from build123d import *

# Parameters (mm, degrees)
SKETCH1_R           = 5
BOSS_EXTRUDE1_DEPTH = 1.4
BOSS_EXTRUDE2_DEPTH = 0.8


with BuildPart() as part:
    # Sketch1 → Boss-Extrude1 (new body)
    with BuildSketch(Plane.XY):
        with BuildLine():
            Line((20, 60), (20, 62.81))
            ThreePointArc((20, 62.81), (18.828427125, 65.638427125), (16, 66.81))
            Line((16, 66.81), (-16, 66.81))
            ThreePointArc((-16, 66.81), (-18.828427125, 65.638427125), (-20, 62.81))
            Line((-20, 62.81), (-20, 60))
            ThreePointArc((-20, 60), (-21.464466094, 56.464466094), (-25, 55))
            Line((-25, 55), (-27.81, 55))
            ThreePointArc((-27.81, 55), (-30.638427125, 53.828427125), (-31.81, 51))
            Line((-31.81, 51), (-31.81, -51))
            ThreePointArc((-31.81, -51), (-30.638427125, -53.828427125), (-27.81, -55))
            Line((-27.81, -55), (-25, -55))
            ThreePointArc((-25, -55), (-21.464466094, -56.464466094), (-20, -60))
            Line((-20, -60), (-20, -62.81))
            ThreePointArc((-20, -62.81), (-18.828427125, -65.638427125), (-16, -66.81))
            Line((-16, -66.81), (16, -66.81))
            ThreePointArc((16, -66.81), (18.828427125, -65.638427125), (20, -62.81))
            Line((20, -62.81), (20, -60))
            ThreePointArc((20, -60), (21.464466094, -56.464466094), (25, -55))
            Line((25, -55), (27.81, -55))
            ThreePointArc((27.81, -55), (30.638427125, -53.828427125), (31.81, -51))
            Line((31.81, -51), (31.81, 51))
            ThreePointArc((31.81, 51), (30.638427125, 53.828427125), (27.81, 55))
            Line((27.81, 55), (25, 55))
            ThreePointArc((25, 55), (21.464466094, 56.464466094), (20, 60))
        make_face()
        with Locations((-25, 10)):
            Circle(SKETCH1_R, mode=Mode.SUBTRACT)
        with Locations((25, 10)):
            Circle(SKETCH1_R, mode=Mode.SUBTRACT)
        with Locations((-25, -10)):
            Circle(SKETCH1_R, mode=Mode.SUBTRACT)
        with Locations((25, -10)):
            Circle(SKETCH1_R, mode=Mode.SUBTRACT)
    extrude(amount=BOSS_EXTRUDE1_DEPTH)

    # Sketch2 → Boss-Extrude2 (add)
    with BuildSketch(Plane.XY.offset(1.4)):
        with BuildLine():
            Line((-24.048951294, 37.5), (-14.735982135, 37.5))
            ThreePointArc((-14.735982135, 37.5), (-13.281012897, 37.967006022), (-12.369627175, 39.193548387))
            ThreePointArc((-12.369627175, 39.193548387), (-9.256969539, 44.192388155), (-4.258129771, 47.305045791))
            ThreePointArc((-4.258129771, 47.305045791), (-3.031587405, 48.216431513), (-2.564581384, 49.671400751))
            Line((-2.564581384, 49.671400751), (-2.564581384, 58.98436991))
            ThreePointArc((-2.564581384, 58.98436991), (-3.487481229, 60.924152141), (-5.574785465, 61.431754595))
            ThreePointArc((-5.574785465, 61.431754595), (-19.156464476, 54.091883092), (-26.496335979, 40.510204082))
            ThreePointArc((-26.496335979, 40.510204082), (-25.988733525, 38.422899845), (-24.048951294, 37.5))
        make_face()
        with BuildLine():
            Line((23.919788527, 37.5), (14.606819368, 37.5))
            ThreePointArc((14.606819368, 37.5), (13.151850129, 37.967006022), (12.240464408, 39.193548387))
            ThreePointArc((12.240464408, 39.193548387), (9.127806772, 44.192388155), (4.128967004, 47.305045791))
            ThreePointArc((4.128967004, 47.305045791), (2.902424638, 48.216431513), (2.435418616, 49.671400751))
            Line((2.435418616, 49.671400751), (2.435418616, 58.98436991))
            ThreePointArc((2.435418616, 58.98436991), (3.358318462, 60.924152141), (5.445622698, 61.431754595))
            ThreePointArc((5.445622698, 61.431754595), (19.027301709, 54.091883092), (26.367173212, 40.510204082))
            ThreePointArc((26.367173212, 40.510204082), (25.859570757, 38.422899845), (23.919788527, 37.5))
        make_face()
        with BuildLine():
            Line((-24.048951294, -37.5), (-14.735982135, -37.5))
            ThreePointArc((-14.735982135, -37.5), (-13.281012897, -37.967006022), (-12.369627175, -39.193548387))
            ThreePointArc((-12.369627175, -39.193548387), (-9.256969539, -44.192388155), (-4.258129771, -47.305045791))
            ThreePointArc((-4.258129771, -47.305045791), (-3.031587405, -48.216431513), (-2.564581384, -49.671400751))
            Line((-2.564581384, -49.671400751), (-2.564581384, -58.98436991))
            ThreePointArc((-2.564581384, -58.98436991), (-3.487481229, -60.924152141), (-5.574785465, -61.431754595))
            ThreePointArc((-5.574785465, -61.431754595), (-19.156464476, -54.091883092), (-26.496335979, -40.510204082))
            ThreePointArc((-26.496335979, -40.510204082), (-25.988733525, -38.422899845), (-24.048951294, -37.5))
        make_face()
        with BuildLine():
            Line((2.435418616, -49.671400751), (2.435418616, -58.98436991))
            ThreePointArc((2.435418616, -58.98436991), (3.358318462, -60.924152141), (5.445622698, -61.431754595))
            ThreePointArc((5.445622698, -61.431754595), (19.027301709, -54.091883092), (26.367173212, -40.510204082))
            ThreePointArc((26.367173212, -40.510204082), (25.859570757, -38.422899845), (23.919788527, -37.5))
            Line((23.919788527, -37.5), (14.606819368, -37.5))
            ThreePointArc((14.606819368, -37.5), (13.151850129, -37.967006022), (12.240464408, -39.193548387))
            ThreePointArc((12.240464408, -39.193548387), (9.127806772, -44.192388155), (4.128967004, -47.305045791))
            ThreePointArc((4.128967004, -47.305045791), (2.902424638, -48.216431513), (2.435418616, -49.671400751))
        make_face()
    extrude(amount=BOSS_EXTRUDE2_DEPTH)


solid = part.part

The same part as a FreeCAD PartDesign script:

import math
import FreeCAD as App
import Part
import Sketcher
Q = App.Units.Quantity

doc = App.newDocument("Part")
body = doc.addObject("PartDesign::Body", "Body")

# Sketch on XY plane
sketch1 = doc.addObject("Sketcher::SketchObject", "Sketch")
body.addObject(sketch1)
sketch1.AttachmentSupport = (doc.XY_Plane, [""])
sketch1.MapMode = "FlatFace"
sketch1.addGeometry(Part.LineSegment(App.Vector(20, 60, 0), App.Vector(20, 62.8, 0)), False)
sketch1.addGeometry(Part.ArcOfCircle(Part.Circle(App.Vector(16, 62.8, 0), App.Vector(0, 0, 1), 4), math.radians(0), math.radians(90)), False)
sketch1.addGeometry(Part.LineSegment(App.Vector(16, 66.8, 0), App.Vector(-16, 66.8, 0)), False)
sketch1.addGeometry(Part.ArcOfCircle(Part.Circle(App.Vector(-16, 62.8, 0), App.Vector(0, 0, 1), 4), math.radians(90), math.radians(180)), False)
sketch1.addGeometry(Part.LineSegment(App.Vector(-20, 62.8, 0), App.Vector(-20, 60, 0)), False)
sketch1.addGeometry(Part.ArcOfCircle(Part.Circle(App.Vector(-25, 60, 0), App.Vector(0, 0, 1), 5), math.radians(-90), math.radians(0)), False)
sketch1.addGeometry(Part.LineSegment(App.Vector(-25, 55, 0), App.Vector(-27.8, 55, 0)), False)
sketch1.addGeometry(Part.ArcOfCircle(Part.Circle(App.Vector(-27.8, 51, 0), App.Vector(0, 0, 1), 4), math.radians(90), math.radians(180)), False)
sketch1.addGeometry(Part.LineSegment(App.Vector(-31.8, 51, 0), App.Vector(-31.8, -51, 0)), False)
sketch1.addGeometry(Part.ArcOfCircle(Part.Circle(App.Vector(-27.8, -51, 0), App.Vector(0, 0, 1), 4), math.radians(180), math.radians(270)), False)
sketch1.addGeometry(Part.LineSegment(App.Vector(-27.8, -55, 0), App.Vector(-25, -55, 0)), False)
sketch1.addGeometry(Part.ArcOfCircle(Part.Circle(App.Vector(-25, -60, 0), App.Vector(0, 0, 1), 5), math.radians(0), math.radians(90)), False)
sketch1.addGeometry(Part.LineSegment(App.Vector(-20, -60, 0), App.Vector(-20, -62.8, 0)), False)
sketch1.addGeometry(Part.ArcOfCircle(Part.Circle(App.Vector(-16, -62.8, 0), App.Vector(0, 0, 1), 4), math.radians(180), math.radians(270)), False)
sketch1.addGeometry(Part.LineSegment(App.Vector(-16, -66.8, 0), App.Vector(16, -66.8, 0)), False)
sketch1.addGeometry(Part.ArcOfCircle(Part.Circle(App.Vector(16, -62.8, 0), App.Vector(0, 0, 1), 4), math.radians(-90), math.radians(0)), False)
sketch1.addGeometry(Part.LineSegment(App.Vector(20, -62.8, 0), App.Vector(20, -60, 0)), False)
sketch1.addGeometry(Part.ArcOfCircle(Part.Circle(App.Vector(25, -60, 0), App.Vector(0, 0, 1), 5), math.radians(90), math.radians(180)), False)
sketch1.addGeometry(Part.LineSegment(App.Vector(25, -55, 0), App.Vector(27.8, -55, 0)), False)
sketch1.addGeometry(Part.ArcOfCircle(Part.Circle(App.Vector(27.8, -51, 0), App.Vector(0, 0, 1), 4), math.radians(-90), math.radians(0)), False)
sketch1.addGeometry(Part.LineSegment(App.Vector(31.8, -51, 0), App.Vector(31.8, 51, 0)), False)
sketch1.addGeometry(Part.ArcOfCircle(Part.Circle(App.Vector(27.8, 51, 0), App.Vector(0, 0, 1), 4), math.radians(0), math.radians(90)), False)
sketch1.addGeometry(Part.LineSegment(App.Vector(27.8, 55, 0), App.Vector(25, 55, 0)), False)
sketch1.addGeometry(Part.ArcOfCircle(Part.Circle(App.Vector(25, 60, 0), App.Vector(0, 0, 1), 5), math.radians(180), math.radians(270)), False)
sketch1.addGeometry(Part.Circle(App.Vector(-25, -10, 0), App.Vector(0, 0, 1), 5), False)
sketch1.addGeometry(Part.Circle(App.Vector(25, -10, 0), App.Vector(0, 0, 1), 5), False)
sketch1.addGeometry(Part.Circle(App.Vector(-25, 10, 0), App.Vector(0, 0, 1), 5), False)
sketch1.addGeometry(Part.Circle(App.Vector(25, 10, 0), App.Vector(0, 0, 1), 5), False)
sketch1.addConstraint(Sketcher.Constraint("Tangent", 0, 2, 1, 1))
sketch1.addConstraint(Sketcher.Constraint("Tangent", 1, 2, 2, 1))
sketch1.addConstraint(Sketcher.Constraint("Tangent", 2, 2, 3, 1))
sketch1.addConstraint(Sketcher.Constraint("Tangent", 3, 2, 4, 1))
sketch1.addConstraint(Sketcher.Constraint("Tangent", 4, 2, 5, 2))
sketch1.addConstraint(Sketcher.Constraint("Tangent", 5, 1, 6, 1))
sketch1.addConstraint(Sketcher.Constraint("Tangent", 6, 2, 7, 1))
sketch1.addConstraint(Sketcher.Constraint("Tangent", 7, 2, 8, 1))
sketch1.addConstraint(Sketcher.Constraint("Tangent", 8, 2, 9, 1))
sketch1.addConstraint(Sketcher.Constraint("Tangent", 9, 2, 10, 1))
sketch1.addConstraint(Sketcher.Constraint("Tangent", 10, 2, 11, 2))
sketch1.addConstraint(Sketcher.Constraint("Tangent", 11, 1, 12, 1))
sketch1.addConstraint(Sketcher.Constraint("Tangent", 12, 2, 13, 1))
sketch1.addConstraint(Sketcher.Constraint("Tangent", 13, 2, 14, 1))
sketch1.addConstraint(Sketcher.Constraint("Tangent", 14, 2, 15, 1))
sketch1.addConstraint(Sketcher.Constraint("Tangent", 15, 2, 16, 1))
sketch1.addConstraint(Sketcher.Constraint("Tangent", 16, 2, 17, 2))
sketch1.addConstraint(Sketcher.Constraint("Tangent", 17, 1, 18, 1))
sketch1.addConstraint(Sketcher.Constraint("Tangent", 18, 2, 19, 1))
sketch1.addConstraint(Sketcher.Constraint("Tangent", 19, 2, 20, 1))
sketch1.addConstraint(Sketcher.Constraint("Tangent", 20, 2, 21, 1))
sketch1.addConstraint(Sketcher.Constraint("Tangent", 21, 2, 22, 1))
sketch1.addConstraint(Sketcher.Constraint("Tangent", 22, 2, 23, 2))
sketch1.addConstraint(Sketcher.Constraint("Tangent", 23, 1, 0, 1))
sketch1.addConstraint(Sketcher.Constraint("Vertical", 0))
sketch1.addConstraint(Sketcher.Constraint("Horizontal", 2))
sketch1.addConstraint(Sketcher.Constraint("Vertical", 4))
sketch1.addConstraint(Sketcher.Constraint("Horizontal", 6))
sketch1.addConstraint(Sketcher.Constraint("Vertical", 8))
sketch1.addConstraint(Sketcher.Constraint("Horizontal", 10))
sketch1.addConstraint(Sketcher.Constraint("Vertical", 12))
sketch1.addConstraint(Sketcher.Constraint("Horizontal", 14))
sketch1.addConstraint(Sketcher.Constraint("Vertical", 16))
sketch1.addConstraint(Sketcher.Constraint("Horizontal", 18))
sketch1.addConstraint(Sketcher.Constraint("Vertical", 20))
sketch1.addConstraint(Sketcher.Constraint("Horizontal", 22))
sketch1.addConstraint(Sketcher.Constraint("Equal", 1, 3))
sketch1.addConstraint(Sketcher.Constraint("Equal", 3, 7))
sketch1.addConstraint(Sketcher.Constraint("Equal", 7, 9))
sketch1.addConstraint(Sketcher.Constraint("Equal", 5, 11))
sketch1.addConstraint(Sketcher.Constraint("Equal", 9, 13))
sketch1.addConstraint(Sketcher.Constraint("Equal", 13, 15))
sketch1.addConstraint(Sketcher.Constraint("Equal", 11, 17))
sketch1.addConstraint(Sketcher.Constraint("Equal", 15, 19))
sketch1.addConstraint(Sketcher.Constraint("Equal", 19, 21))
sketch1.addConstraint(Sketcher.Constraint("Equal", 17, 23))
sketch1.addConstraint(Sketcher.Constraint("Equal", 23, 24))
sketch1.addConstraint(Sketcher.Constraint("Equal", 24, 25))
sketch1.addConstraint(Sketcher.Constraint("Equal", 25, 26))
sketch1.addConstraint(Sketcher.Constraint("Equal", 26, 27))
sketch1.addConstraint(Sketcher.Constraint("Symmetric", 1, 3, 13, 3, -1, 1))
sketch1.addConstraint(Sketcher.Constraint("Symmetric", 5, 3, 17, 3, -1, 1))
sketch1.addConstraint(Sketcher.Constraint("Symmetric", 9, 3, 21, 3, -1, 1))
sketch1.addConstraint(Sketcher.Constraint("Symmetric", 25, 3, 26, 3, -1, 1))
sketch1.addConstraint(Sketcher.Constraint("Symmetric", 24, 3, 27, 3, -1, 1))
sketch1.addConstraint(Sketcher.Constraint("Symmetric", 11, 3, 17, 3, -2))
sketch1.addConstraint(Sketcher.Constraint("Symmetric", 24, 3, 25, 3, -2))
sketch1.addConstraint(Sketcher.Constraint("Vertical", 11, 3, 24, 3))
sketch1.addConstraint(Sketcher.Constraint("Equal", 22, 0))
sketch1.addConstraint(Sketcher.Constraint("Diameter", 24, Q("10 mm")))
sketch1.addConstraint(Sketcher.Constraint("Radius", 1, Q("4 mm")))
sketch1.addConstraint(Sketcher.Constraint("DistanceX", 2, 2, 2, 1, Q("32 mm")))
sketch1.addConstraint(Sketcher.Constraint("DistanceY", 8, 2, 8, 1, Q("102 mm")))
sketch1.addConstraint(Sketcher.Constraint("DistanceY", 24, 3, -1, 1, Q("10 mm")))
sketch1.addConstraint(Sketcher.Constraint("DistanceX", 6, 2, 6, 1, Q("2.81 mm")))
pad1 = doc.addObject("PartDesign::Pad", "Pad")
body.addObject(pad1)
pad1.Profile = sketch1
pad1.Length = 1.4

# Sketch on XY plane
sketch2 = doc.addObject("Sketcher::SketchObject", "Sketch001")
body.addObject(sketch2)
sketch2.AttachmentSupport = (doc.XY_Plane, [""])
sketch2.MapMode = "FlatFace"
sketch2.AttachmentOffset = App.Placement(App.Vector(0, 0, 1.4), App.Rotation())
sketch2.addGeometry(Part.LineSegment(App.Vector(-24, 37.5, 0), App.Vector(-14.7, 37.5, 0)), False)
sketch2.addGeometry(Part.ArcOfCircle(Part.Circle(App.Vector(-14.7, 40, 0), App.Vector(0, 0, 1), 2.5), math.radians(-90), math.radians(-19)), False)
sketch2.addGeometry(Part.ArcOfCircle(Part.Circle(App.Vector(-0.1, 35, 0), App.Vector(0, 0, 1), 13), math.radians(109), math.radians(161)), False)
sketch2.addGeometry(Part.ArcOfCircle(Part.Circle(App.Vector(-5.1, 49.7, 0), App.Vector(0, 0, 1), 2.5), math.radians(-71), math.radians(0)), False)
sketch2.addGeometry(Part.LineSegment(App.Vector(-2.6, 49.7, 0), App.Vector(-2.6, 59, 0)), False)
sketch2.addGeometry(Part.ArcOfCircle(Part.Circle(App.Vector(-5.1, 59, 0), App.Vector(0, 0, 1), 2.5), math.radians(0), math.radians(102)), False)
sketch2.addGeometry(Part.ArcOfCircle(Part.Circle(App.Vector(-0.1, 35, 0), App.Vector(0, 0, 1), 27), math.radians(102), math.radians(168)), False)
sketch2.addGeometry(Part.ArcOfCircle(Part.Circle(App.Vector(-24, 40, 0), App.Vector(0, 0, 1), 2.5), math.radians(168), math.radians(270)), False)
sketch2.addGeometry(Part.LineSegment(App.Vector(14.6, 37.5, 0), App.Vector(23.9, 37.5, 0)), False)
sketch2.addGeometry(Part.ArcOfCircle(Part.Circle(App.Vector(23.9, 40, 0), App.Vector(0, 0, 1), 2.5), math.radians(-90), math.radians(12)), False)
sketch2.addGeometry(Part.ArcOfCircle(Part.Circle(App.Vector(-0.1, 35, 0), App.Vector(0, 0, 1), 27), math.radians(12), math.radians(78)), False)
sketch2.addGeometry(Part.ArcOfCircle(Part.Circle(App.Vector(4.9, 59, 0), App.Vector(0, 0, 1), 2.5), math.radians(78), math.radians(180)), False)
sketch2.addGeometry(Part.LineSegment(App.Vector(2.4, 59, 0), App.Vector(2.4, 49.7, 0)), False)
sketch2.addGeometry(Part.ArcOfCircle(Part.Circle(App.Vector(4.9, 49.7, 0), App.Vector(0, 0, 1), 2.5), math.radians(-180), math.radians(-109)), False)
sketch2.addGeometry(Part.ArcOfCircle(Part.Circle(App.Vector(-0.1, 35, 0), App.Vector(0, 0, 1), 13), math.radians(19), math.radians(71)), False)
sketch2.addGeometry(Part.ArcOfCircle(Part.Circle(App.Vector(14.6, 40, 0), App.Vector(0, 0, 1), 2.5), math.radians(-161), math.radians(-90)), False)
sketch2.addGeometry(Part.LineSegment(App.Vector(-14.7, -37.5, 0), App.Vector(-24, -37.5, 0)), False)
sketch2.addGeometry(Part.ArcOfCircle(Part.Circle(App.Vector(-24, -40, 0), App.Vector(0, 0, 1), 2.5), math.radians(90), math.radians(192)), False)
sketch2.addGeometry(Part.ArcOfCircle(Part.Circle(App.Vector(-0.1, -35, 0), App.Vector(0, 0, 1), 27), math.radians(-168), math.radians(-102)), False)
sketch2.addGeometry(Part.ArcOfCircle(Part.Circle(App.Vector(-5.1, -59, 0), App.Vector(0, 0, 1), 2.5), math.radians(-102), math.radians(0)), False)
sketch2.addGeometry(Part.LineSegment(App.Vector(-2.6, -59, 0), App.Vector(-2.6, -49.7, 0)), False)
sketch2.addGeometry(Part.ArcOfCircle(Part.Circle(App.Vector(-5.1, -49.7, 0), App.Vector(0, 0, 1), 2.5), math.radians(0), math.radians(71)), False)
sketch2.addGeometry(Part.ArcOfCircle(Part.Circle(App.Vector(-0.1, -35, 0), App.Vector(0, 0, 1), 13), math.radians(-161), math.radians(-109)), False)
sketch2.addGeometry(Part.ArcOfCircle(Part.Circle(App.Vector(-14.7, -40, 0), App.Vector(0, 0, 1), 2.5), math.radians(19), math.radians(90)), False)
sketch2.addGeometry(Part.LineSegment(App.Vector(2.4, -49.7, 0), App.Vector(2.4, -59, 0)), False)
sketch2.addGeometry(Part.ArcOfCircle(Part.Circle(App.Vector(4.9, -59, 0), App.Vector(0, 0, 1), 2.5), math.radians(180), math.radians(282)), False)
sketch2.addGeometry(Part.ArcOfCircle(Part.Circle(App.Vector(-0.1, -35, 0), App.Vector(0, 0, 1), 27), math.radians(-78), math.radians(-12)), False)
sketch2.addGeometry(Part.ArcOfCircle(Part.Circle(App.Vector(23.9, -40, 0), App.Vector(0, 0, 1), 2.5), math.radians(-12), math.radians(90)), False)
sketch2.addGeometry(Part.LineSegment(App.Vector(23.9, -37.5, 0), App.Vector(14.6, -37.5, 0)), False)
sketch2.addGeometry(Part.ArcOfCircle(Part.Circle(App.Vector(14.6, -40, 0), App.Vector(0, 0, 1), 2.5), math.radians(90), math.radians(161)), False)
sketch2.addGeometry(Part.ArcOfCircle(Part.Circle(App.Vector(-0.1, -35, 0), App.Vector(0, 0, 1), 13), math.radians(-71), math.radians(-19)), False)
sketch2.addGeometry(Part.ArcOfCircle(Part.Circle(App.Vector(4.9, -49.7, 0), App.Vector(0, 0, 1), 2.5), math.radians(109), math.radians(180)), False)
sketch2.addConstraint(Sketcher.Constraint("Tangent", 0, 2, 1, 1))
sketch2.addConstraint(Sketcher.Constraint("Tangent", 1, 2, 2, 2))
sketch2.addConstraint(Sketcher.Constraint("Tangent", 2, 1, 3, 1))
sketch2.addConstraint(Sketcher.Constraint("Tangent", 3, 2, 4, 1))
sketch2.addConstraint(Sketcher.Constraint("Tangent", 4, 2, 5, 1))
sketch2.addConstraint(Sketcher.Constraint("Tangent", 5, 2, 6, 1))
sketch2.addConstraint(Sketcher.Constraint("Tangent", 6, 2, 7, 1))
sketch2.addConstraint(Sketcher.Constraint("Tangent", 7, 2, 0, 1))
sketch2.addConstraint(Sketcher.Constraint("Tangent", 8, 2, 9, 1))
sketch2.addConstraint(Sketcher.Constraint("Tangent", 9, 2, 10, 1))
sketch2.addConstraint(Sketcher.Constraint("Tangent", 10, 2, 11, 1))
sketch2.addConstraint(Sketcher.Constraint("Tangent", 11, 2, 12, 1))
sketch2.addConstraint(Sketcher.Constraint("Tangent", 12, 2, 13, 1))
sketch2.addConstraint(Sketcher.Constraint("Tangent", 13, 2, 14, 2))
sketch2.addConstraint(Sketcher.Constraint("Tangent", 14, 1, 15, 1))
sketch2.addConstraint(Sketcher.Constraint("Tangent", 15, 2, 8, 1))
sketch2.addConstraint(Sketcher.Constraint("Tangent", 16, 2, 17, 1))
sketch2.addConstraint(Sketcher.Constraint("Tangent", 17, 2, 18, 1))
sketch2.addConstraint(Sketcher.Constraint("Tangent", 18, 2, 19, 1))
sketch2.addConstraint(Sketcher.Constraint("Tangent", 19, 2, 20, 1))
sketch2.addConstraint(Sketcher.Constraint("Tangent", 20, 2, 21, 1))
sketch2.addConstraint(Sketcher.Constraint("Tangent", 21, 2, 22, 2))
sketch2.addConstraint(Sketcher.Constraint("Tangent", 22, 1, 23, 1))
sketch2.addConstraint(Sketcher.Constraint("Tangent", 23, 2, 16, 1))
sketch2.addConstraint(Sketcher.Constraint("Tangent", 24, 2, 25, 1))
sketch2.addConstraint(Sketcher.Constraint("Tangent", 25, 2, 26, 1))
sketch2.addConstraint(Sketcher.Constraint("Tangent", 26, 2, 27, 1))
sketch2.addConstraint(Sketcher.Constraint("Tangent", 27, 2, 28, 1))
sketch2.addConstraint(Sketcher.Constraint("Tangent", 28, 2, 29, 1))
sketch2.addConstraint(Sketcher.Constraint("Tangent", 29, 2, 30, 2))
sketch2.addConstraint(Sketcher.Constraint("Tangent", 30, 1, 31, 1))
sketch2.addConstraint(Sketcher.Constraint("Tangent", 31, 2, 24, 1))
sketch2.addConstraint(Sketcher.Constraint("Horizontal", 0))
sketch2.addConstraint(Sketcher.Constraint("Vertical", 4))
sketch2.addConstraint(Sketcher.Constraint("Horizontal", 8))
sketch2.addConstraint(Sketcher.Constraint("Vertical", 12))
sketch2.addConstraint(Sketcher.Constraint("Horizontal", 16))
sketch2.addConstraint(Sketcher.Constraint("Vertical", 20))
sketch2.addConstraint(Sketcher.Constraint("Vertical", 24))
sketch2.addConstraint(Sketcher.Constraint("Horizontal", 28))
sketch2.addConstraint(Sketcher.Constraint("Coincident", 6, 3, 2, 3))
sketch2.addConstraint(Sketcher.Constraint("Coincident", 10, 3, 2, 3))
sketch2.addConstraint(Sketcher.Constraint("Coincident", 14, 3, 2, 3))
sketch2.addConstraint(Sketcher.Constraint("Coincident", 22, 3, 18, 3))
sketch2.addConstraint(Sketcher.Constraint("Coincident", 26, 3, 18, 3))
sketch2.addConstraint(Sketcher.Constraint("Coincident", 30, 3, 18, 3))
sketch2.addConstraint(Sketcher.Constraint("Equal", 1, 3))
sketch2.addConstraint(Sketcher.Constraint("Equal", 3, 5))
sketch2.addConstraint(Sketcher.Constraint("Equal", 5, 7))
sketch2.addConstraint(Sketcher.Constraint("Equal", 7, 9))
sketch2.addConstraint(Sketcher.Constraint("Equal", 6, 10))
sketch2.addConstraint(Sketcher.Constraint("Equal", 9, 11))
sketch2.addConstraint(Sketcher.Constraint("Equal", 11, 13))
sketch2.addConstraint(Sketcher.Constraint("Equal", 2, 14))
sketch2.addConstraint(Sketcher.Constraint("Equal", 13, 15))
sketch2.addConstraint(Sketcher.Constraint("Equal", 15, 17))
sketch2.addConstraint(Sketcher.Constraint("Equal", 10, 18))
sketch2.addConstraint(Sketcher.Constraint("Equal", 17, 19))
sketch2.addConstraint(Sketcher.Constraint("Equal", 19, 21))
sketch2.addConstraint(Sketcher.Constraint("Equal", 14, 22))
sketch2.addConstraint(Sketcher.Constraint("Equal", 21, 23))
sketch2.addConstraint(Sketcher.Constraint("Equal", 23, 25))
sketch2.addConstraint(Sketcher.Constraint("Equal", 18, 26))
sketch2.addConstraint(Sketcher.Constraint("Equal", 25, 27))
sketch2.addConstraint(Sketcher.Constraint("Equal", 27, 29))
sketch2.addConstraint(Sketcher.Constraint("Equal", 22, 30))
sketch2.addConstraint(Sketcher.Constraint("Equal", 29, 31))
sketch2.addConstraint(Sketcher.Constraint("Symmetric", 7, 3, 17, 3, -1))
sketch2.addConstraint(Sketcher.Constraint("Symmetric", 5, 3, 19, 3, -1))
sketch2.addConstraint(Sketcher.Constraint("Horizontal", 7, 3, 9, 3))
sketch2.addConstraint(Sketcher.Constraint("Horizontal", 5, 3, 11, 3))
sketch2.addConstraint(Sketcher.Constraint("Horizontal", 19, 3, 25, 3))
sketch2.addConstraint(Sketcher.Constraint("Horizontal", 23, 3, 27, 3))
sketch2.addConstraint(Sketcher.Constraint("Equal", 28, 4))
sketch2.addConstraint(Sketcher.Constraint("Radius", 2, Q("13 mm")))
sketch2.addConstraint(Sketcher.Constraint("Radius", 6, Q("27 mm")))
sketch2.addConstraint(Sketcher.Constraint("Radius", 1, Q("2.5 mm")))
sketch2.addConstraint(Sketcher.Constraint("DistanceY", -1, 1, 1, 3, Q("40 mm")))
sketch2.addConstraint(Sketcher.Constraint("DistanceY", -1, 1, 2, 3, Q("35 mm")))
sketch2.addConstraint(Sketcher.Constraint("DistanceX", 2, 3, -1, 1, Q("0.064581 mm")))
pad2 = doc.addObject("PartDesign::Pad", "Pad001")
body.addObject(pad2)
pad2.Profile = sketch2
pad2.Length = 0.8

doc.recompute()
